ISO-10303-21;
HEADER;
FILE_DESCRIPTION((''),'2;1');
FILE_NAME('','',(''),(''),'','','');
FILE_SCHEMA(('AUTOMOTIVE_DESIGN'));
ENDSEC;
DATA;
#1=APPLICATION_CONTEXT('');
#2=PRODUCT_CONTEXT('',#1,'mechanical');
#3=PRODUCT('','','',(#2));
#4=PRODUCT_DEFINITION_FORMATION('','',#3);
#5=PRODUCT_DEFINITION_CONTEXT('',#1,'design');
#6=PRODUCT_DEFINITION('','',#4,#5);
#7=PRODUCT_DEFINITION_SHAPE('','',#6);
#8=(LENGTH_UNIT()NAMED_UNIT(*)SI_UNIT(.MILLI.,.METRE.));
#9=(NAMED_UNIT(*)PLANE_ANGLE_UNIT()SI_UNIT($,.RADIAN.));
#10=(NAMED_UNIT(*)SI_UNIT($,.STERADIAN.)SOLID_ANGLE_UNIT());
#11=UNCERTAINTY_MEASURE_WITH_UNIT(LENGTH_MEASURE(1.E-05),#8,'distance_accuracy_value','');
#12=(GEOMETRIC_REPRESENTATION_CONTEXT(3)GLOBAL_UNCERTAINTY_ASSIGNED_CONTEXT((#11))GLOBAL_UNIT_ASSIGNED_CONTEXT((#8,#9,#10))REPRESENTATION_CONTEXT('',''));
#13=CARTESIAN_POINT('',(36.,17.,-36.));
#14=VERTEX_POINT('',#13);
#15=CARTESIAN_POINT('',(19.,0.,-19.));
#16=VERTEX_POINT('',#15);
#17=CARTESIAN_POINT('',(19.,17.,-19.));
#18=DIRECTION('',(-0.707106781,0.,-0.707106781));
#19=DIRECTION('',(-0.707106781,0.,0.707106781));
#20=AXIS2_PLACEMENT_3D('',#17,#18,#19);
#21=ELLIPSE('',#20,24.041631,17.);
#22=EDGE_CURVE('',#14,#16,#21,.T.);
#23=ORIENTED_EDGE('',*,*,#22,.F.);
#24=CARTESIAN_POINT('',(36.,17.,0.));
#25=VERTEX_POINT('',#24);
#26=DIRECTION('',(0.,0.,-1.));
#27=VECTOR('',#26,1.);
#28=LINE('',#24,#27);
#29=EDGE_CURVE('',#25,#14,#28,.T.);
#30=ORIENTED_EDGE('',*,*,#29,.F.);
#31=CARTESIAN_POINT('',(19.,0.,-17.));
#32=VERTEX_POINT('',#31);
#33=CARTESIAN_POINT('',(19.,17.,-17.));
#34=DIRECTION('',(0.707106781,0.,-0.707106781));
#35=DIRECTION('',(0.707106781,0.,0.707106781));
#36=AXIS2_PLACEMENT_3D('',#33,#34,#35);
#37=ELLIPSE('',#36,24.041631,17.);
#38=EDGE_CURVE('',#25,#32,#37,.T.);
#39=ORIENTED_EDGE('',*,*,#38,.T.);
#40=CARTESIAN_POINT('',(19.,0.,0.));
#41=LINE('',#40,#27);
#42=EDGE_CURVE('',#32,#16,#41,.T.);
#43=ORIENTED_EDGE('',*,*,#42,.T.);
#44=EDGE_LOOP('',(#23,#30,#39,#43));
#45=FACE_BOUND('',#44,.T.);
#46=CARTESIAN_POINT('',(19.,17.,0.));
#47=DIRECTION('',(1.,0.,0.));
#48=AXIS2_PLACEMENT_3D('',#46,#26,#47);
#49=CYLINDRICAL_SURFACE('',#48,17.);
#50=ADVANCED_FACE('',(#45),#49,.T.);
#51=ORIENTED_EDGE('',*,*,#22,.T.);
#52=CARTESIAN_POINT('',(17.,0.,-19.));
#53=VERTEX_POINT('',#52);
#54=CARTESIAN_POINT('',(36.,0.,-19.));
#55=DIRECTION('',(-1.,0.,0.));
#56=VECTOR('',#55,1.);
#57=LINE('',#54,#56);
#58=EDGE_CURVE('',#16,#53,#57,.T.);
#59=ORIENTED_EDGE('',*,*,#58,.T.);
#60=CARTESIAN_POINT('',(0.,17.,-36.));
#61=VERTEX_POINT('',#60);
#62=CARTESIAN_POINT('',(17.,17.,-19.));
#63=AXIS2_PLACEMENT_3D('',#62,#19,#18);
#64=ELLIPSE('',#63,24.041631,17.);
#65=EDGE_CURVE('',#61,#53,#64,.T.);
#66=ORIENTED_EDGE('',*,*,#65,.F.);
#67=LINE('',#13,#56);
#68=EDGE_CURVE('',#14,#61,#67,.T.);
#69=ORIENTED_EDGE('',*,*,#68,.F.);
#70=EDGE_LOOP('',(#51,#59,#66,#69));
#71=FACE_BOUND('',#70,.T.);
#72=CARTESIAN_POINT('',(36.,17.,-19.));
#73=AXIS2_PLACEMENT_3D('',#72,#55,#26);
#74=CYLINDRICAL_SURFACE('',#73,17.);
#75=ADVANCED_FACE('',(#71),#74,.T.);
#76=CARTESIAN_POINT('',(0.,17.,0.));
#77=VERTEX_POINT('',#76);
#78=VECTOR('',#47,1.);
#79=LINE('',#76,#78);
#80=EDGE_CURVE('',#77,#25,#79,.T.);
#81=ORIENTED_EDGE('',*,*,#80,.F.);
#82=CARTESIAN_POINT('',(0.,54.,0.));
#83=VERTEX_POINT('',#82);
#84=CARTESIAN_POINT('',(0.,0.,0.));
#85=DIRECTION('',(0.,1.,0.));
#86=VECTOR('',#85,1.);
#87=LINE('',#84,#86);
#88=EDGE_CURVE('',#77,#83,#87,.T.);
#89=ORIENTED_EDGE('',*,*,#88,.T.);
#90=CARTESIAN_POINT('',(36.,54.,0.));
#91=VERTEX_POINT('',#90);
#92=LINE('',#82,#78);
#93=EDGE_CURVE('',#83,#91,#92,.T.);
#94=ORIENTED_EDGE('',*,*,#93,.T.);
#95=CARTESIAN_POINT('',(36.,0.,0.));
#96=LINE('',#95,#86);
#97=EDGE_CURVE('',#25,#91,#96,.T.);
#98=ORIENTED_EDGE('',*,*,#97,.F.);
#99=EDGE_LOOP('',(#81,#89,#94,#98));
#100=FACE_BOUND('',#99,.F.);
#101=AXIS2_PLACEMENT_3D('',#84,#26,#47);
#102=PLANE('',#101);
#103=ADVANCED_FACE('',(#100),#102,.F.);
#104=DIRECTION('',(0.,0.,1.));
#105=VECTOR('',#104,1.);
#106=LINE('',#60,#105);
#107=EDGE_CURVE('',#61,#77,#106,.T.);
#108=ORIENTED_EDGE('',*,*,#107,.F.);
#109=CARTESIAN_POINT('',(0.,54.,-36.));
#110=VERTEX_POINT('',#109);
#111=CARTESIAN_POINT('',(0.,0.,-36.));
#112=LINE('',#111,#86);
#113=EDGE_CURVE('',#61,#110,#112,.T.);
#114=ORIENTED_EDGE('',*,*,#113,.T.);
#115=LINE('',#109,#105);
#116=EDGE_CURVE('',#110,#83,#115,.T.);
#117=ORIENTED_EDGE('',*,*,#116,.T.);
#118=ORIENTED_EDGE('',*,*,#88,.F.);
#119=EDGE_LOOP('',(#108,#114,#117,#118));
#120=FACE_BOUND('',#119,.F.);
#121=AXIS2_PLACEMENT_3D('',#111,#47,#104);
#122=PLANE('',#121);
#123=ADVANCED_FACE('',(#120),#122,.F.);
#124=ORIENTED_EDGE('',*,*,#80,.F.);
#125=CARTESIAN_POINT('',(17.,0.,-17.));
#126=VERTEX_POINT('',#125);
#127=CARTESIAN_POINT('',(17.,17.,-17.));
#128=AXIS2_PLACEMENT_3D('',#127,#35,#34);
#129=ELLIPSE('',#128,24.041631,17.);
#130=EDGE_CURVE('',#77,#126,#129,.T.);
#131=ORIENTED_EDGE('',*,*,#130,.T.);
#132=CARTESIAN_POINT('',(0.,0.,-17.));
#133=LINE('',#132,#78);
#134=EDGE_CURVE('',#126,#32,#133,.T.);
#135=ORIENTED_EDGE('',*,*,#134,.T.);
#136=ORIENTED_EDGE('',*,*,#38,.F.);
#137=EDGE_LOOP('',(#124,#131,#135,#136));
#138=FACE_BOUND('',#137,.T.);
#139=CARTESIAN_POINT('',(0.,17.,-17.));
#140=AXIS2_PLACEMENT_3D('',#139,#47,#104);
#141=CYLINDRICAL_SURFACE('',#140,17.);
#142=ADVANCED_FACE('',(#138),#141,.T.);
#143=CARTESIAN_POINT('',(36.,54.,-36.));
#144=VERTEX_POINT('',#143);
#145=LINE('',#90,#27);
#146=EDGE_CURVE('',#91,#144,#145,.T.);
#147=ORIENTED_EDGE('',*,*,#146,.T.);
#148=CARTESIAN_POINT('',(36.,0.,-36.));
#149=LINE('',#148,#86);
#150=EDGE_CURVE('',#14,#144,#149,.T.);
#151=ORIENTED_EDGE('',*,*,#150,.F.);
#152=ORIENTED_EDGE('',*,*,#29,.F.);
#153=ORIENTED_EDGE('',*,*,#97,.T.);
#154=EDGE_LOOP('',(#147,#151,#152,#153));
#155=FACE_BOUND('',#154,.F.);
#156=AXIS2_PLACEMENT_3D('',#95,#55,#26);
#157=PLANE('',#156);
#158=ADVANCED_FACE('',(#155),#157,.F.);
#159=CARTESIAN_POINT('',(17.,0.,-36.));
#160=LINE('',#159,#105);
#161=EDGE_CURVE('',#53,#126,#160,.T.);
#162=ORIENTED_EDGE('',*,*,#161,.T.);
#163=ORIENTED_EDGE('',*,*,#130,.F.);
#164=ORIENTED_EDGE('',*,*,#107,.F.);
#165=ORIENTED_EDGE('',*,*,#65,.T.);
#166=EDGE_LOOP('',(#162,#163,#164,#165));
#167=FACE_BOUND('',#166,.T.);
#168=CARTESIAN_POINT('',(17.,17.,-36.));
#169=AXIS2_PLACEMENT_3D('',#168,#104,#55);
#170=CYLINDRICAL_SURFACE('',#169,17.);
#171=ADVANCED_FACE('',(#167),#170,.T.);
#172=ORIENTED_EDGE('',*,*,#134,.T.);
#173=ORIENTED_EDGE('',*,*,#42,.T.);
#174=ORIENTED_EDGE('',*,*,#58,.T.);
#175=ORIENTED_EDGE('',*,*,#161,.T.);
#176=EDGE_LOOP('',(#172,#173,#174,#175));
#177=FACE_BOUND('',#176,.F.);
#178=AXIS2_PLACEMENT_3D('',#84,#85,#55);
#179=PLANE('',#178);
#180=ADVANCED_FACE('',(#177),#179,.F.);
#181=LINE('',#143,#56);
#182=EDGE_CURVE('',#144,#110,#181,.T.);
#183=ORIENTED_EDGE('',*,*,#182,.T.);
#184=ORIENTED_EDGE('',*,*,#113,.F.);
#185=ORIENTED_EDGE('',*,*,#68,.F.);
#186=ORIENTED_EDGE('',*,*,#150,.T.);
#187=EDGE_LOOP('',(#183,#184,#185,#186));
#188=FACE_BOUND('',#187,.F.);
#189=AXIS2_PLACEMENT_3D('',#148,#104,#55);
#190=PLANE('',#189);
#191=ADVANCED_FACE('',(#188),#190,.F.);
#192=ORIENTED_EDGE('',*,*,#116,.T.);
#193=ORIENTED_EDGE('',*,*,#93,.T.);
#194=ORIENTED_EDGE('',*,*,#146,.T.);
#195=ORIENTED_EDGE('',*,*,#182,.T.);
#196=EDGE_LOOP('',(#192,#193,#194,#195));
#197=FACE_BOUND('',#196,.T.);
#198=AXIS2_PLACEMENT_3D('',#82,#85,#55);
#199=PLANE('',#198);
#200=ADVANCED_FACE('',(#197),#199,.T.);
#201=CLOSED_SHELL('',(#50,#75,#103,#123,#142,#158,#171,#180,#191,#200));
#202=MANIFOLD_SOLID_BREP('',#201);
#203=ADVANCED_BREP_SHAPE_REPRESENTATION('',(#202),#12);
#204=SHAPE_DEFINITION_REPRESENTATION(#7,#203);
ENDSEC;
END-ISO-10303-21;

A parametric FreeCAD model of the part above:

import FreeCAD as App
import Part
import Sketcher

V = App.Vector
Q = App.Units.Quantity


def edges_at(feature, points):
    """Names of the edges that pass closest to the given points."""
    edges = feature.Shape.Edges
    near = lambda p: min(range(len(edges)), key=lambda i: edges[i].distToShape(Part.Vertex(*p))[0])
    return sorted({f"Edge{near(p) + 1}" for p in points})


def add_polygon(sketch, points):
    """Adds a closed chain of lines whose ends are joined by coincident constraints."""
    first, n = sketch.GeometryCount, len(points)
    for a, b in zip(points, points[1:] + points[:1]):
        sketch.addGeometry(Part.LineSegment(App.Vector(*a, 0), App.Vector(*b, 0)), False)
    for i in range(n):
        sketch.addConstraint(Sketcher.Constraint("Coincident", first + i, 2, first + (i + 1) % n, 1))

doc = App.newDocument("Part")
body = doc.addObject("PartDesign::Body", "Body")

sketch1 = body.newObject("Sketcher::SketchObject", "Sketch")
sketch1.AttachmentSupport = (doc.getObject("XZ_Plane"), [""])
sketch1.MapMode = "FlatFace"
add_polygon(sketch1, [(0, -36), (0, 0), (36, 0), (36, -36)])
sketch1.addConstraint(Sketcher.Constraint("Vertical", 0))
sketch1.addConstraint(Sketcher.Constraint("Horizontal", 1))
sketch1.addConstraint(Sketcher.Constraint("Vertical", 2))
sketch1.addConstraint(Sketcher.Constraint("Horizontal", 3))
sketch1.addConstraint(Sketcher.Constraint("Coincident", 0, 2, -1, 1))
sketch1.addConstraint(Sketcher.Constraint("Equal", 3, 0))
sketch1.addConstraint(Sketcher.Constraint("DistanceX", 1, 1, 1, 2, Q("36 mm")))
pad1 = body.newObject("PartDesign::Pad", "Pad")
pad1.Profile = sketch1
pad1.Length = 54
pad1.Reversed = True
doc.recompute()

fillet = body.newObject("PartDesign::Fillet", "Fillet")
fillet.Base = (pad1, edges_at(pad1, [
    (18, 0, 0),
    (18, 0, -36),
    (36, 0, -18),
    (0, 0, -18),
]))
fillet.Radius = 17

doc.recompute()
